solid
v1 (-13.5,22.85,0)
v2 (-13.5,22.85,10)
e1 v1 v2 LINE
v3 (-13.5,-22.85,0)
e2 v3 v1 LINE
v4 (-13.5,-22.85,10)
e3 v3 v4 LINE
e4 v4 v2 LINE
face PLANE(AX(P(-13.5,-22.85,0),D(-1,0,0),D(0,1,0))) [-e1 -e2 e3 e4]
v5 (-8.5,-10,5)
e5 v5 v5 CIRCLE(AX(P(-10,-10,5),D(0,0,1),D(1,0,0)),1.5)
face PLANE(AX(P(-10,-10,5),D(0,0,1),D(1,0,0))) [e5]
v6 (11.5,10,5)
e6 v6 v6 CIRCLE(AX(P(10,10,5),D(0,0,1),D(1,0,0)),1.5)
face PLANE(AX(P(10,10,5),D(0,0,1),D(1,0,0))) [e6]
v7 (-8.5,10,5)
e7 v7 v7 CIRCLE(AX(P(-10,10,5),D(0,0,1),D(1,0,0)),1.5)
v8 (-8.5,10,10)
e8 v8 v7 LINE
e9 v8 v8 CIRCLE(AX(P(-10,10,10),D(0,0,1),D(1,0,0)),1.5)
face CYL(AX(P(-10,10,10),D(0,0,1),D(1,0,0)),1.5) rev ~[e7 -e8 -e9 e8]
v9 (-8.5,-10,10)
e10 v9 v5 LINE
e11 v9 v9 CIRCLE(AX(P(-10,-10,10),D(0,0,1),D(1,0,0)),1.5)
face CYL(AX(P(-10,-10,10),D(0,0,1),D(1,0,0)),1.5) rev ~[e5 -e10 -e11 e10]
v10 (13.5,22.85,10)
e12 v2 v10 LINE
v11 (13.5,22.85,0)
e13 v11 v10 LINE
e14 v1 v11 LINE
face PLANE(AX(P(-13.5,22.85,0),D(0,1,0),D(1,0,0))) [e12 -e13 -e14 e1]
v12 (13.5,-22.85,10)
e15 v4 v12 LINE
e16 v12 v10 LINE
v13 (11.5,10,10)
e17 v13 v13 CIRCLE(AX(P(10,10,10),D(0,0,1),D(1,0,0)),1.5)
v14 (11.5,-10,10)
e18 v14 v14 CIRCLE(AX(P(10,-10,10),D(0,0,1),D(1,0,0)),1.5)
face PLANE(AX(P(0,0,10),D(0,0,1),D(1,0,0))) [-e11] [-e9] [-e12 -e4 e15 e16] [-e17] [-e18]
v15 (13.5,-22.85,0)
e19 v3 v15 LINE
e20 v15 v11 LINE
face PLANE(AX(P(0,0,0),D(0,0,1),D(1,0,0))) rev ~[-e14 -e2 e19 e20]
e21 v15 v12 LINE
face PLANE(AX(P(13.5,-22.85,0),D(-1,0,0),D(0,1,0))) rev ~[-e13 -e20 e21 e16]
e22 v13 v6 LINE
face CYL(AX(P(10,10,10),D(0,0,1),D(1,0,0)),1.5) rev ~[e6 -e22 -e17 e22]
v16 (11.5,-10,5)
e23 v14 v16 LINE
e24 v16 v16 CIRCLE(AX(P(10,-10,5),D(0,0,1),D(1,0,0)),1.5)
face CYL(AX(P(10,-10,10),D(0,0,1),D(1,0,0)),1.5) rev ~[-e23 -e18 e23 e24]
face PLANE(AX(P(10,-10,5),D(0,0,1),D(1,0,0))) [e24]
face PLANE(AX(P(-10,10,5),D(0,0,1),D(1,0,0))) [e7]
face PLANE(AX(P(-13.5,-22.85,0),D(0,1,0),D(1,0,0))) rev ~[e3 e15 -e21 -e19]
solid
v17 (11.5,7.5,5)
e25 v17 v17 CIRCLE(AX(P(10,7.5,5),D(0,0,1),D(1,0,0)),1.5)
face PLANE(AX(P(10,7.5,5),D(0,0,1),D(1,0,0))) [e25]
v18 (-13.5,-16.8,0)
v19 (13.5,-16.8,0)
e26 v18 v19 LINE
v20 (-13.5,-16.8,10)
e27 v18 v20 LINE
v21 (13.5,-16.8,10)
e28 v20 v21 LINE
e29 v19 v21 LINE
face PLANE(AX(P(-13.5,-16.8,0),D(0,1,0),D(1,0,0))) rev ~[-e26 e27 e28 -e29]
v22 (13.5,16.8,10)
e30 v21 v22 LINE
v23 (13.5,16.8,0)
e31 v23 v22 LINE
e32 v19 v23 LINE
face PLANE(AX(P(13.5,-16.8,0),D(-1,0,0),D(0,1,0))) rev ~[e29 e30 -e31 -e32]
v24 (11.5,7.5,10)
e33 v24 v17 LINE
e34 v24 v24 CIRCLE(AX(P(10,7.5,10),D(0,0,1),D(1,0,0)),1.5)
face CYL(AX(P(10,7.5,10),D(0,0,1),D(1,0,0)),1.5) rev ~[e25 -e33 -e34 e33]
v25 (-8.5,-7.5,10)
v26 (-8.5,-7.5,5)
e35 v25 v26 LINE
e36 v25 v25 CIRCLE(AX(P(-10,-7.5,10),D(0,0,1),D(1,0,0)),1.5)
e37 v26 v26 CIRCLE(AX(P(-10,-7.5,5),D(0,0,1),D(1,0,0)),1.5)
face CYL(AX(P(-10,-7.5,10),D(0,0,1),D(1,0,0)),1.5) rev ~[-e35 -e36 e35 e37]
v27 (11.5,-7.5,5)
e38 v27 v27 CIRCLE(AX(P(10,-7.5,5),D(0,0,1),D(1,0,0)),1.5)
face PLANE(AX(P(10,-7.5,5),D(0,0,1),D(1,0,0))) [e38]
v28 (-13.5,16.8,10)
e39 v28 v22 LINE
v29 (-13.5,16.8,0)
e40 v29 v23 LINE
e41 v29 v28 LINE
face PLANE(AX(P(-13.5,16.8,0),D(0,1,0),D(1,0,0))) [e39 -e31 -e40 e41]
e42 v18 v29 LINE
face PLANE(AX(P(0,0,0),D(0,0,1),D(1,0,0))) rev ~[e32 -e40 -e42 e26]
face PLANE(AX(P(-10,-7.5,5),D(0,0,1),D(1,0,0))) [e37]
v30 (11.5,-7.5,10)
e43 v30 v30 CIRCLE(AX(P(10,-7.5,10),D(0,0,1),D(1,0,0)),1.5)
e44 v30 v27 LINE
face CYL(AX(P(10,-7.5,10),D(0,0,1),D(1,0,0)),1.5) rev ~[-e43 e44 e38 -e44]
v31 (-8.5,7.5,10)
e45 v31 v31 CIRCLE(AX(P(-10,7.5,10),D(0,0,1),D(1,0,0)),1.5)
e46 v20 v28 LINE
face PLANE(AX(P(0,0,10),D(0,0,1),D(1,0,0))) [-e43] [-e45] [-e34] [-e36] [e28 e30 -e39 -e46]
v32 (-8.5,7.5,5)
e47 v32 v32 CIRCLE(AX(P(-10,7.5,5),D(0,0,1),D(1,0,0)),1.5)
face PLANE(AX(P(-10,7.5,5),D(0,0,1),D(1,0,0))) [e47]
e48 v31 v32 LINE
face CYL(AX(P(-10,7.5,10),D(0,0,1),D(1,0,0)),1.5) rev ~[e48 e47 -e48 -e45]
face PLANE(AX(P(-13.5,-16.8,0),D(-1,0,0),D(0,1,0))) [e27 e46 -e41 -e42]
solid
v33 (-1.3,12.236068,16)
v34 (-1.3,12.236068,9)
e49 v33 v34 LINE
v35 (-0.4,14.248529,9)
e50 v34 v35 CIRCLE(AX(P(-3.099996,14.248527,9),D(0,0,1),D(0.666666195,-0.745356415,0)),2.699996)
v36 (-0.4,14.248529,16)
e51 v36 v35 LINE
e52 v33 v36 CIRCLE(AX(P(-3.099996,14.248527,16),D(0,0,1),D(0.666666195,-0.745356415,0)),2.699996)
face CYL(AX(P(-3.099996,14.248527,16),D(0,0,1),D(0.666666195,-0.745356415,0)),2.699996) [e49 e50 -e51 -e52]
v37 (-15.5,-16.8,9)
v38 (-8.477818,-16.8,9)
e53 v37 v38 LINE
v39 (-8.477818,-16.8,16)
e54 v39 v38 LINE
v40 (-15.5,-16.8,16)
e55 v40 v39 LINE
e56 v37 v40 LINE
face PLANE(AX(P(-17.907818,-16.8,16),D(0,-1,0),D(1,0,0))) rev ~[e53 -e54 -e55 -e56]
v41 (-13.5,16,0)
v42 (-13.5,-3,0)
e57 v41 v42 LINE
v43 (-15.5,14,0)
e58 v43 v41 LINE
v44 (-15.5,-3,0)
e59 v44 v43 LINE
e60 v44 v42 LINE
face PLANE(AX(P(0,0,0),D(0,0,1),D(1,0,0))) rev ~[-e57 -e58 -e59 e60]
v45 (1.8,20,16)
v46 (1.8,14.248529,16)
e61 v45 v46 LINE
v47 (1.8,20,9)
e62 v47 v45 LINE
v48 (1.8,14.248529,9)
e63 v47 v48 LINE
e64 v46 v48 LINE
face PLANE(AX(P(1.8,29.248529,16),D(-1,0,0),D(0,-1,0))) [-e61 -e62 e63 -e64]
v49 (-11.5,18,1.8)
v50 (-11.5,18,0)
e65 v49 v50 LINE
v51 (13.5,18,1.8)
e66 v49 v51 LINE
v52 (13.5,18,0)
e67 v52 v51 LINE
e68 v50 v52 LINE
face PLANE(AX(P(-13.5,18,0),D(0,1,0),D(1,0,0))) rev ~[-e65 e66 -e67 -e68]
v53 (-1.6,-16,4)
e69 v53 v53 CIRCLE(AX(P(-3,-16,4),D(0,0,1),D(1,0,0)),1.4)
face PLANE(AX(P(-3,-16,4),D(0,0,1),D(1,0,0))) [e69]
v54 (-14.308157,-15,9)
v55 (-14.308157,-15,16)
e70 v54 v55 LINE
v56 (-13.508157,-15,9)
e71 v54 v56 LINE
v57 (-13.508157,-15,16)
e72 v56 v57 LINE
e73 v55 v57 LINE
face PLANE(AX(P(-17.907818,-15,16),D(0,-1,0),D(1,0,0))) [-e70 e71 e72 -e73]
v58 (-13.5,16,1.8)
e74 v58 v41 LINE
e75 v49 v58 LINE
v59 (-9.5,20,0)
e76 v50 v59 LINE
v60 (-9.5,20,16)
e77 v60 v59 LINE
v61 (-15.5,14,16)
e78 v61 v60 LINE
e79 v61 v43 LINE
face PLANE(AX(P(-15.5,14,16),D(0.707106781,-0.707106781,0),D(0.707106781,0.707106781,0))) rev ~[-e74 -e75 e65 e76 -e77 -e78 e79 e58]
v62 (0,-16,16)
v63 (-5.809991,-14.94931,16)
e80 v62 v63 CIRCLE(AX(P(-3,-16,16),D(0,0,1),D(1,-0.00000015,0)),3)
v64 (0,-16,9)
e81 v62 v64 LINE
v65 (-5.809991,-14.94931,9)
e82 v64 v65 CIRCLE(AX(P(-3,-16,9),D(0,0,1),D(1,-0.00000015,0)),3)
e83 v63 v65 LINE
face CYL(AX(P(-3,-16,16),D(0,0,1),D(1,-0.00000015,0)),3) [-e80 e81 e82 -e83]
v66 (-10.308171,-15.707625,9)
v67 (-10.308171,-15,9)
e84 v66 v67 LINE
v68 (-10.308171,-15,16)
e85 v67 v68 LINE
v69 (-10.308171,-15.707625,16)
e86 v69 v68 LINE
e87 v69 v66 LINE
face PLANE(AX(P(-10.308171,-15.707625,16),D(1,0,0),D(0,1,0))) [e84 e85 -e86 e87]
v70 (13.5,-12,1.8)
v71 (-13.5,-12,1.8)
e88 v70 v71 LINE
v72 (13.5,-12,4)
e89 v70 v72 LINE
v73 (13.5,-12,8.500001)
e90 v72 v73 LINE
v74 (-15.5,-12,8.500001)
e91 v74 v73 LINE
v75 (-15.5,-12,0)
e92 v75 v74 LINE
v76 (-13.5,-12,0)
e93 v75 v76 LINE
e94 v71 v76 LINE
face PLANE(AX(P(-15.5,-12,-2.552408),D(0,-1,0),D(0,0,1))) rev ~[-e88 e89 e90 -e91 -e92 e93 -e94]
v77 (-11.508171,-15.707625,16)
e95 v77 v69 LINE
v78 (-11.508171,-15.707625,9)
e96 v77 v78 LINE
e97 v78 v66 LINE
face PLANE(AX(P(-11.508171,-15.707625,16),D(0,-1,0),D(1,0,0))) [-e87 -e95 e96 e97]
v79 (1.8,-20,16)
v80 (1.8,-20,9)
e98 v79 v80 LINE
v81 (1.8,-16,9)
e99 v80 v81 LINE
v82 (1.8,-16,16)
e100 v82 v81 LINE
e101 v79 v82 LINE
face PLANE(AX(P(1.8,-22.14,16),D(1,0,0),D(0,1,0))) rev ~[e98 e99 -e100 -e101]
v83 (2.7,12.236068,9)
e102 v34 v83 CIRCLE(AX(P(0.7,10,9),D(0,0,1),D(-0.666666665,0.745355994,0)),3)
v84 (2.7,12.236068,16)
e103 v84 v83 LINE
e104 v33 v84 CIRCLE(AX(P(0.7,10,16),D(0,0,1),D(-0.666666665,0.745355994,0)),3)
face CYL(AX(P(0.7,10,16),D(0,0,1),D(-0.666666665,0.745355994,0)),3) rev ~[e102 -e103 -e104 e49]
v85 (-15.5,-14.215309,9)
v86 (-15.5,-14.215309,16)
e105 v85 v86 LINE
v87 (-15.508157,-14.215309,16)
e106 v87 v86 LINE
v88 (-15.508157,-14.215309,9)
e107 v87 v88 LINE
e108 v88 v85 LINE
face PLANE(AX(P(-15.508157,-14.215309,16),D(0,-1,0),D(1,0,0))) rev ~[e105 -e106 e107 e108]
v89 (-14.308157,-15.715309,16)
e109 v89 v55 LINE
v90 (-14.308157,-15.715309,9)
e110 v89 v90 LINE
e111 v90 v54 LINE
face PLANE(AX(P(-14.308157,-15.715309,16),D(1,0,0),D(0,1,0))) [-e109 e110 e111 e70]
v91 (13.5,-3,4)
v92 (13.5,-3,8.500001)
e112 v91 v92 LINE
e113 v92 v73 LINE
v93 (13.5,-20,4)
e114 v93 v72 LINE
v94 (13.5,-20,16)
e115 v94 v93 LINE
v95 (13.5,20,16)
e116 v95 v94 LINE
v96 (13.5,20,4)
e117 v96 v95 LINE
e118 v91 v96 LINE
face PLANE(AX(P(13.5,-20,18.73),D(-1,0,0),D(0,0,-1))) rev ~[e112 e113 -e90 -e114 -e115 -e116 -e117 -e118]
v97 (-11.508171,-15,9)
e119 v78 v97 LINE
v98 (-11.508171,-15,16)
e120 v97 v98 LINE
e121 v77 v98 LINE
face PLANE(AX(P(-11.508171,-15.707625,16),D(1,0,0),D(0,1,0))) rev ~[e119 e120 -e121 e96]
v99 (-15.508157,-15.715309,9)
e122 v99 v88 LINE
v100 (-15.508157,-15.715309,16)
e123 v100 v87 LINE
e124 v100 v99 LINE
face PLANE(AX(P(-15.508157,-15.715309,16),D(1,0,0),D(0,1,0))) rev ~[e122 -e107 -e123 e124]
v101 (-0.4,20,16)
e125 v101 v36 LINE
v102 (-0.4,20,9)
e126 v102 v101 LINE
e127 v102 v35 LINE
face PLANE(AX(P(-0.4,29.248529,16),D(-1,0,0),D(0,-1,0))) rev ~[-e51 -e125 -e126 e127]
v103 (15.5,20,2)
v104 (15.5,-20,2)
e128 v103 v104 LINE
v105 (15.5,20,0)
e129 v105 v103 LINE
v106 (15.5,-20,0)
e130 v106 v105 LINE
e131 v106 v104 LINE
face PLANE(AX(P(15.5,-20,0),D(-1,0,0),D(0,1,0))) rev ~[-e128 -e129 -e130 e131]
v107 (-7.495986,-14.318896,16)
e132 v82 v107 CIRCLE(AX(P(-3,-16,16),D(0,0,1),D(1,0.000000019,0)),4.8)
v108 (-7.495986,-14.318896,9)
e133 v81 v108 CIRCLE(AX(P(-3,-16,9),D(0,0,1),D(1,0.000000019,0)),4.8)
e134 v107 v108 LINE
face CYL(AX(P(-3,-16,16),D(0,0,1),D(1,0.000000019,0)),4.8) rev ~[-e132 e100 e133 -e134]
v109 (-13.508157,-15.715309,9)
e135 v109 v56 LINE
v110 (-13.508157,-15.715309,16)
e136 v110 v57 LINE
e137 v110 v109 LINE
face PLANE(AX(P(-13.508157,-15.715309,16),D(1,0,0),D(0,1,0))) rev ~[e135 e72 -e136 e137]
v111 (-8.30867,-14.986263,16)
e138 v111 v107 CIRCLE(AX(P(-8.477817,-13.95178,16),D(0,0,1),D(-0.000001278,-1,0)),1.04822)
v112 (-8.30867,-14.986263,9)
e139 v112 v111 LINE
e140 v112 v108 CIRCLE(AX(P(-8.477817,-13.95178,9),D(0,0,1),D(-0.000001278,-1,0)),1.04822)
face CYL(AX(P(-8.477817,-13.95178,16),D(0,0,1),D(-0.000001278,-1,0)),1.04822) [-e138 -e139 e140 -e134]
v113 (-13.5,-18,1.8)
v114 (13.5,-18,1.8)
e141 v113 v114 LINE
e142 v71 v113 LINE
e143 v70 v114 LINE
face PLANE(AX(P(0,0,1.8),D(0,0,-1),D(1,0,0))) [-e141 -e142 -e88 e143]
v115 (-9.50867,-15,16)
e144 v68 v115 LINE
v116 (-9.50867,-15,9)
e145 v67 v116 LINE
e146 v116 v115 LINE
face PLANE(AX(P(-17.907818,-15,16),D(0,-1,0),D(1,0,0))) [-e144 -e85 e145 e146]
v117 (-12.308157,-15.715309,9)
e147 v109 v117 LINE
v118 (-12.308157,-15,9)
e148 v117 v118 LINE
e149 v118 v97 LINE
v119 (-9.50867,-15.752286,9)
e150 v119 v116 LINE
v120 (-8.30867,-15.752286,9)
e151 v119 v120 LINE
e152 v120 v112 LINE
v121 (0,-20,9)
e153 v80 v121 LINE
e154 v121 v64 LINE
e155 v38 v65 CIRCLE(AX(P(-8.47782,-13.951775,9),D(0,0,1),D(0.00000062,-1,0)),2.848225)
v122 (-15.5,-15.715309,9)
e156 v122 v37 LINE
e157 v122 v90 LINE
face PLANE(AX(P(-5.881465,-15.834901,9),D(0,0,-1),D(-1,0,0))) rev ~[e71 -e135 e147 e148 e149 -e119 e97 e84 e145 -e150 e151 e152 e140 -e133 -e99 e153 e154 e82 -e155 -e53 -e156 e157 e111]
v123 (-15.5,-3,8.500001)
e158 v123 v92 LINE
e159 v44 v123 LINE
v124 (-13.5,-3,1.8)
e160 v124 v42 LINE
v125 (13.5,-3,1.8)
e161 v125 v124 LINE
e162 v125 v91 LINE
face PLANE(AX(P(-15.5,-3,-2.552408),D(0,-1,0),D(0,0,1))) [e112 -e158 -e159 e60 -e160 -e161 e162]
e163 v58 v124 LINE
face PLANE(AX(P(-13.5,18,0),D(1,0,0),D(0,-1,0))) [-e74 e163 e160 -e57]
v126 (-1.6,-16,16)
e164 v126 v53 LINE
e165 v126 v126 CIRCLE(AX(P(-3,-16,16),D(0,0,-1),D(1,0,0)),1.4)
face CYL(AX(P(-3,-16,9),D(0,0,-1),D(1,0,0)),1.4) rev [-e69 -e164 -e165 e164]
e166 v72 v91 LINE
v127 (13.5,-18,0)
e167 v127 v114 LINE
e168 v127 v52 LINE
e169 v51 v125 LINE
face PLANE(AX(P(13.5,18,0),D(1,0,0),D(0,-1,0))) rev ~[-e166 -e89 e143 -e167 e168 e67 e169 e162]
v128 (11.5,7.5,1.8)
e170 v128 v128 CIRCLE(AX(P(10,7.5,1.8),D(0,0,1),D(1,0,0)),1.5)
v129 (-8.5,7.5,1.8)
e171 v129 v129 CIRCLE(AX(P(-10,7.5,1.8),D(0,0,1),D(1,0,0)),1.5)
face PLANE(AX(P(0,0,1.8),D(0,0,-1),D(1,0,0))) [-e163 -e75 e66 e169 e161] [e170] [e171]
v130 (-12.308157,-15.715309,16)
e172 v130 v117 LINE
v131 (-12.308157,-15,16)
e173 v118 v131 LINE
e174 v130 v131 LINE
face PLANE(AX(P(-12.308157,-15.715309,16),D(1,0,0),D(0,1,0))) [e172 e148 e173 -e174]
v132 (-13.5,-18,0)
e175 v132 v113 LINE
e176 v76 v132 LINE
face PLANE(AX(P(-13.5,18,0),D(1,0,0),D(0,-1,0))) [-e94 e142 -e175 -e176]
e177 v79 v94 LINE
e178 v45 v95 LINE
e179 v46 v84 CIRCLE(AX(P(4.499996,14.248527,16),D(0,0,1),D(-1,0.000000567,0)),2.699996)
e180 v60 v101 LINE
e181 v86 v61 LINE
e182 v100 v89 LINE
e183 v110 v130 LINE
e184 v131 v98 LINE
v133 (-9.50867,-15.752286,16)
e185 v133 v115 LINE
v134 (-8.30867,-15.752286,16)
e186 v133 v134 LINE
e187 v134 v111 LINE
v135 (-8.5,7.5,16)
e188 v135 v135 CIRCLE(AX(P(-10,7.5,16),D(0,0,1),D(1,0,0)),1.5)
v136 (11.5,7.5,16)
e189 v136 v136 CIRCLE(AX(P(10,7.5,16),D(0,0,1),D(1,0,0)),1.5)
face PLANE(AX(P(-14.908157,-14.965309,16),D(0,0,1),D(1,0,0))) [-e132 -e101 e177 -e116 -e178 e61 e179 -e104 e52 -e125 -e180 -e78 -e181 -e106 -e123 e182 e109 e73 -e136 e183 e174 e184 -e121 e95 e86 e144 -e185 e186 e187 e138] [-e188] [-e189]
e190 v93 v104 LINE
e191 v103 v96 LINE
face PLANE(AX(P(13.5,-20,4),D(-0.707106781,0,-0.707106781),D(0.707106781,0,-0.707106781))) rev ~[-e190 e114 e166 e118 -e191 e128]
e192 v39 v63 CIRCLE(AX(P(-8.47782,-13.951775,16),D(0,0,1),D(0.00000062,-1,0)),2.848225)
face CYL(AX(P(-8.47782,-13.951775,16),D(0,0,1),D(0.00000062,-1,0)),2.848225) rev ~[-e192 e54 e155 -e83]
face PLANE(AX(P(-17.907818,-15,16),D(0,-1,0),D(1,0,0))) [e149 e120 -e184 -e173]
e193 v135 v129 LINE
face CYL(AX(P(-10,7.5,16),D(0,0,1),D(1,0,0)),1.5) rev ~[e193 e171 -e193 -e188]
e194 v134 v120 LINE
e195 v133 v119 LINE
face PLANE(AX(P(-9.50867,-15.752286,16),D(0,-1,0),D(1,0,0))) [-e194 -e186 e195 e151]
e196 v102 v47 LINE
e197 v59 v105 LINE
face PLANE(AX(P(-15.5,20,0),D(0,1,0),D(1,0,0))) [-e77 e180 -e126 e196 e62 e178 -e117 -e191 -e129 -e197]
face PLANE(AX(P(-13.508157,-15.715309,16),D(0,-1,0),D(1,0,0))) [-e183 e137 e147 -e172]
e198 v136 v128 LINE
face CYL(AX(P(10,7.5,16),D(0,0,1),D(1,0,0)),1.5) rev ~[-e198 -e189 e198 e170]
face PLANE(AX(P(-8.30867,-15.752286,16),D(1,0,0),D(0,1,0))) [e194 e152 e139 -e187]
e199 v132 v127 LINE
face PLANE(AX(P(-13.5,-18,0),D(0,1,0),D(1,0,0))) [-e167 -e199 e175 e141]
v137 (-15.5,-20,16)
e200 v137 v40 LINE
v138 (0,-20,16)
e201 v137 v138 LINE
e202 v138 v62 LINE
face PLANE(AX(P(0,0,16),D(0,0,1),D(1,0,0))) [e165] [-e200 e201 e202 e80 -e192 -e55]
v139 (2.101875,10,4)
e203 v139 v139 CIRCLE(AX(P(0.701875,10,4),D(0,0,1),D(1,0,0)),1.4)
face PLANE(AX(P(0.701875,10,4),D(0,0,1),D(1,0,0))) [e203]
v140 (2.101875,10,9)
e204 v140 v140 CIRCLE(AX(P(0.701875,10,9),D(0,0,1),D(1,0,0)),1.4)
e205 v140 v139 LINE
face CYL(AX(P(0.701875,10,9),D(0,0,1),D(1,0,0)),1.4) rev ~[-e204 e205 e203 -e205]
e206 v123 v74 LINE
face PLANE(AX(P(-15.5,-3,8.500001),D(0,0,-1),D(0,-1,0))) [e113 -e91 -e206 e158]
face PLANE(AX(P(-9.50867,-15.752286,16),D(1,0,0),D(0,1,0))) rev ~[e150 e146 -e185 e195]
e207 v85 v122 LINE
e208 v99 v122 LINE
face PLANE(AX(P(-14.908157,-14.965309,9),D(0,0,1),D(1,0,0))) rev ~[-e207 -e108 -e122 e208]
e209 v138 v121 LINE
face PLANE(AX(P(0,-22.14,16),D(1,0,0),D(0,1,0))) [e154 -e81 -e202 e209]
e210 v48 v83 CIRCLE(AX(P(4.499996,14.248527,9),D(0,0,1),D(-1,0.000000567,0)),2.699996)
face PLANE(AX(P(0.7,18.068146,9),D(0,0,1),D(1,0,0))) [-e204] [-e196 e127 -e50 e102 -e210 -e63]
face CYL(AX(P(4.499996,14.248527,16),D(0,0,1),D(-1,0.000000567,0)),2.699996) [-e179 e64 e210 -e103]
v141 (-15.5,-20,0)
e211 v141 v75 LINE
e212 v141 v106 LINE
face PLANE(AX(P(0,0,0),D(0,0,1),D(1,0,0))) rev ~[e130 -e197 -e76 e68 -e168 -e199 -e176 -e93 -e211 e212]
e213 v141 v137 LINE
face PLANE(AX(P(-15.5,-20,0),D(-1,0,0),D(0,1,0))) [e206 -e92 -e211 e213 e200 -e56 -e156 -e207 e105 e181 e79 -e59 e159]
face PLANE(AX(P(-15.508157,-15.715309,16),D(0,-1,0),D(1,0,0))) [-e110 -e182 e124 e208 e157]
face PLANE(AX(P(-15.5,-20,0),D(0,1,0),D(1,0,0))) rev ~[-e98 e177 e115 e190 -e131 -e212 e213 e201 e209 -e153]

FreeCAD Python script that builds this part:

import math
import FreeCAD as App
import Part
import Sketcher
from FreeCAD import Vector
Q = App.Units.Quantity

doc = App.newDocument("Part")
params = doc.addObject("Spreadsheet::Sheet", "Params")
for row, (alias, value) in enumerate([
    ("sketch1_width", "27 mm"),
    ("sketch1_height", "45.7 mm"),
    ("pad1_length", "10 mm"),
    ("sketch2_diameter", "3 mm"),
    ("pocket1_length", "5 mm"),
    ("sketch3_width", "27 mm"),
    ("sketch3_height", "33.6 mm"),
    ("pad2_length", "10 mm"),
    ("sketch4_diameter", "3 mm"),
    ("pocket2_length", "5 mm"),
    ("sketch5_width", "31 mm"),
    ("sketch5_height", "40 mm"),
    ("pad3_length", "16 mm"),
    ("sketch6_width", "27 mm"),
    ("sketch6_height", "36 mm"),
    ("pocket3_length", "1.8 mm"),
    ("sketch7_width", "9 mm"),
    ("pocket4_length", "29 mm"),
    ("sketch8_height", "21.2 mm"),
    ("sketch8_width", "6.47 mm"),
    ("sketch9_diameter", "3 mm"),
    ("sketch10_radius", "3 mm"),
    ("sketch10_radius2", "4.8 mm"),
    ("sketch10_height", "15 mm"),
    ("sketch10_width", "2.2 mm"),
    ("sketch10_width2", "9.43 mm"),
    ("pocket7_length", "7 mm"),
    ("sketch11_diameter", "2.8 mm"),
    ("pocket8_length", "5 mm"),
    ("pocket8_length2", "100 mm"),
    ("sketch13_width", "1.2 mm"),
    ("sketch13_height", "1.5 mm"),
    ("pad4_length", "7 mm"),
], start=1):
    params.set(f"A{row}", alias)
    params.set(f"B{row}", "=" + value)
    params.setAlias(f"B{row}", alias)

body = doc.addObject("PartDesign::Body", "Body")

# Sketch on XY plane
sketch1 = body.newObject("Sketcher::SketchObject", "Sketch")
sketch1.AttachmentSupport = (doc.getObject("XY_Plane"), [""])
sketch1.MapMode = "FlatFace"
sketch1.addGeometry([
    Part.LineSegment(Vector(-14, 23, 0), Vector(-14, -23, 0)),
    Part.LineSegment(Vector(-14, -23, 0), Vector(14, -23, 0)),
    Part.LineSegment(Vector(14, -23, 0), Vector(14, 23, 0)),
    Part.LineSegment(Vector(14, 23, 0), Vector(-14, 23, 0)),
], False)
sketch1.addConstraint([
    Sketcher.Constraint("Coincident", 0, 2, 1, 1),
    Sketcher.Constraint("Coincident", 1, 2, 2, 1),
    Sketcher.Constraint("Coincident", 2, 2, 3, 1),
    Sketcher.Constraint("Coincident", 3, 2, 0, 1),
    Sketcher.Constraint("Vertical", 0),
    Sketcher.Constraint("Horizontal", 1),
    Sketcher.Constraint("Vertical", 2),
    Sketcher.Constraint("Horizontal", 3),
    Sketcher.Constraint("Symmetric", 0, 2, 2, 2, -1, 1),
    Sketcher.Constraint("DistanceX", 1, 1, 1, 2, 27.0),
    Sketcher.Constraint("DistanceY", 0, 2, 0, 1, 45.7),
])
sketch1.setExpression("Constraints[9]", "Params.sketch1_width")
sketch1.setExpression("Constraints[10]", "Params.sketch1_height")
pad1 = body.newObject("PartDesign::Pad", "Pad")
pad1.Profile = sketch1
pad1.setExpression("Length", "Params.pad1_length")

# Sketch on XY plane
sketch2 = body.newObject("Sketcher::SketchObject", "Sketch001")
sketch2.AttachmentSupport = (doc.getObject("XY_Plane"), [""])
sketch2.MapMode = "FlatFace"
sketch2.AttachmentOffset = App.Placement(Vector(0, 0, 10), App.Rotation())
sketch2.addGeometry([
    Part.Circle(Vector(-10, 10, 0), Vector(0, 0, 1), 1.5),
    Part.Circle(Vector(10, 10, 0), Vector(0, 0, 1), 1.5),
    Part.Circle(Vector(-10, -10, 0), Vector(0, 0, 1), 1.5),
    Part.Circle(Vector(10, -10, 0), Vector(0, 0, 1), 1.5),
], False)
sketch2.addConstraint([
    Sketcher.Constraint("Equal", 0, 1),
    Sketcher.Constraint("Equal", 1, 2),
    Sketcher.Constraint("Equal", 2, 3),
    Sketcher.Constraint("Symmetric", 1, 3, 2, 3, -1, 1),
    Sketcher.Constraint("Symmetric", 0, 3, 3, 3, -1, 1),
    Sketcher.Constraint("Symmetric", 0, 3, 1, 3, -2),
    Sketcher.Constraint("Diameter", 0, 3.0),
    Sketcher.Constraint("DistanceX", 0, 3, -1, 1, 10.0),
    Sketcher.Constraint("DistanceY", -1, 1, 0, 3, 10.0),
])
sketch2.setExpression("Constraints[6]", "Params.sketch2_diameter")
pocket1 = body.newObject("PartDesign::Pocket", "Pocket")
pocket1.Profile = sketch2
pocket1.setExpression("Length", "Params.pocket1_length")
body2 = doc.addObject("PartDesign::Body", "Body001")

# Sketch on XY plane
sketch3 = body2.newObject("Sketcher::SketchObject", "Sketch002")
sketch3.AttachmentSupport = (doc.getObject("XY_Plane001"), [""])
sketch3.MapMode = "FlatFace"
sketch3.addGeometry([
    Part.LineSegment(Vector(-14, 17, 0), Vector(-14, -17, 0)),
    Part.LineSegment(Vector(-14, -17, 0), Vector(14, -17, 0)),
    Part.LineSegment(Vector(14, -17, 0), Vector(14, 17, 0)),
    Part.LineSegment(Vector(14, 17, 0), Vector(-14, 17, 0)),
], False)
sketch3.addConstraint([
    Sketcher.Constraint("Coincident", 0, 2, 1, 1),
    Sketcher.Constraint("Coincident", 1, 2, 2, 1),
    Sketcher.Constraint("Coincident", 2, 2, 3, 1),
    Sketcher.Constraint("Coincident", 3, 2, 0, 1),
    Sketcher.Constraint("Vertical", 0),
    Sketcher.Constraint("Horizontal", 1),
    Sketcher.Constraint("Vertical", 2),
    Sketcher.Constraint("Horizontal", 3),
    Sketcher.Constraint("Symmetric", 0, 2, 2, 2, -1, 1),
    Sketcher.Constraint("DistanceX", 1, 1, 1, 2, 27.0),
    Sketcher.Constraint("DistanceY", 0, 2, 0, 1, 33.6),
])
sketch3.setExpression("Constraints[9]", "Params.sketch3_width")
sketch3.setExpression("Constraints[10]", "Params.sketch3_height")
pad2 = body2.newObject("PartDesign::Pad", "Pad001")
pad2.Profile = sketch3
pad2.setExpression("Length", "Params.pad2_length")

# Sketch on XY plane
sketch4 = body2.newObject("Sketcher::SketchObject", "Sketch003")
sketch4.AttachmentSupport = (doc.getObject("XY_Plane001"), [""])
sketch4.MapMode = "FlatFace"
sketch4.AttachmentOffset = App.Placement(Vector(0, 0, 10), App.Rotation())
sketch4.addGeometry([
    Part.Circle(Vector(-10, 7.5, 0), Vector(0, 0, 1), 1.5),
    Part.Circle(Vector(10, 7.5, 0), Vector(0, 0, 1), 1.5),
    Part.Circle(Vector(-10, -7.5, 0), Vector(0, 0, 1), 1.5),
    Part.Circle(Vector(10, -7.5, 0), Vector(0, 0, 1), 1.5),
], False)
sketch4.addConstraint([
    Sketcher.Constraint("Equal", 0, 1),
    Sketcher.Constraint("Equal", 1, 2),
    Sketcher.Constraint("Equal", 2, 3),
    Sketcher.Constraint("Symmetric", 1, 3, 2, 3, -1, 1),
    Sketcher.Constraint("Symmetric", 0, 3, 3, 3, -1, 1),
    Sketcher.Constraint("Symmetric", 0, 3, 1, 3, -2),
    Sketcher.Constraint("Diameter", 0, 3.0),
    Sketcher.Constraint("DistanceX", 0, 3, -1, 1, 10.0),
    Sketcher.Constraint("DistanceY", 2, 3, 0, 3, 15.0),
])
sketch4.setExpression("Constraints[6]", "Params.sketch4_diameter")
pocket2 = body2.newObject("PartDesign::Pocket", "Pocket001")
pocket2.Profile = sketch4
pocket2.setExpression("Length", "Params.pocket2_length")
body3 = doc.addObject("PartDesign::Body", "Body002")

# Sketch on XY plane
sketch5 = body3.newObject("Sketcher::SketchObject", "Sketch004")
sketch5.AttachmentSupport = (doc.getObject("XY_Plane002"), [""])
sketch5.MapMode = "FlatFace"
sketch5.addGeometry([
    Part.LineSegment(Vector(-16, 20, 0), Vector(-16, -20, 0)),
    Part.LineSegment(Vector(-16, -20, 0), Vector(16, -20, 0)),
    Part.LineSegment(Vector(16, -20, 0), Vector(16, 20, 0)),
    Part.LineSegment(Vector(16, 20, 0), Vector(-16, 20, 0)),
], False)
sketch5.addConstraint([
    Sketcher.Constraint("Coincident", 0, 2, 1, 1),
    Sketcher.Constraint("Coincident", 1, 2, 2, 1),
    Sketcher.Constraint("Coincident", 2, 2, 3, 1),
    Sketcher.Constraint("Coincident", 3, 2, 0, 1),
    Sketcher.Constraint("Vertical", 0),
    Sketcher.Constraint("Horizontal", 1),
    Sketcher.Constraint("Vertical", 2),
    Sketcher.Constraint("Horizontal", 3),
    Sketcher.Constraint("Symmetric", 0, 2, 2, 2, -1, 1),
    Sketcher.Constraint("DistanceX", 1, 1, 1, 2, 31.0),
    Sketcher.Constraint("DistanceY", 0, 2, 0, 1, 40.0),
])
sketch5.setExpression("Constraints[9]", "Params.sketch5_width")
sketch5.setExpression("Constraints[10]", "Params.sketch5_height")
pad3 = body3.newObject("PartDesign::Pad", "Pad002")
pad3.Profile = sketch5
pad3.setExpression("Length", "Params.pad3_length")

# Sketch on XY plane
sketch6 = body3.newObject("Sketcher::SketchObject", "Sketch005")
sketch6.AttachmentSupport = (doc.getObject("XY_Plane002"), [""])
sketch6.MapMode = "FlatFace"
sketch6.addGeometry([
    Part.LineSegment(Vector(-14, -18, 0), Vector(-14, 18, 0)),
    Part.LineSegment(Vector(-14, 18, 0), Vector(14, 18, 0)),
    Part.LineSegment(Vector(14, 18, 0), Vector(14, -18, 0)),
    Part.LineSegment(Vector(14, -18, 0), Vector(-14, -18, 0)),
], False)
sketch6.addConstraint([
    Sketcher.Constraint("Coincident", 0, 2, 1, 1),
    Sketcher.Constraint("Coincident", 1, 2, 2, 1),
    Sketcher.Constraint("Coincident", 2, 2, 3, 1),
    Sketcher.Constraint("Coincident", 3, 2, 0, 1),
    Sketcher.Constraint("Vertical", 0),
    Sketcher.Constraint("Horizontal", 1),
    Sketcher.Constraint("Vertical", 2),
    Sketcher.Constraint("Horizontal", 3),
    Sketcher.Constraint("Symmetric", 0, 2, 2, 2, -1, 1),
    Sketcher.Constraint("DistanceX", 1, 1, 1, 2, 27.0),
    Sketcher.Constraint("DistanceY", 0, 1, 0, 2, 36.0),
])
sketch6.setExpression("Constraints[9]", "Params.sketch6_width")
sketch6.setExpression("Constraints[10]", "Params.sketch6_height")
pocket3 = body3.newObject("PartDesign::Pocket", "Pocket002")
pocket3.Profile = sketch6
pocket3.setExpression("Length", "Params.pocket3_length")
pocket3.Reversed = True

# Sketch on YZ plane
sketch7 = body3.newObject("Sketcher::SketchObject", "Sketch006")
sketch7.AttachmentSupport = (doc.getObject("YZ_Plane002"), [""])
sketch7.MapMode = "FlatFace"
sketch7.AttachmentOffset = App.Placement(Vector(0, 0, -15.5), App.Rotation())
sketch7.addGeometry([
    Part.LineSegment(Vector(-3, 9, 0), Vector(-3, -3, 0)),
    Part.LineSegment(Vector(-3, -3, 0), Vector(-12, -3, 0)),
    Part.LineSegment(Vector(-12, -3, 0), Vector(-12, 9, 0)),
    Part.LineSegment(Vector(-12, 9, 0), Vector(-3, 9, 0)),
], False)
sketch7.addConstraint([
    Sketcher.Constraint("Coincident", 0, 2, 1, 1),
    Sketcher.Constraint("Coincident", 1, 2, 2, 1),
    Sketcher.Constraint("Coincident", 2, 2, 3, 1),
    Sketcher.Constraint("Coincident", 3, 2, 0, 1),
    Sketcher.Constraint("Vertical", 0),
    Sketcher.Constraint("Horizontal", 1),
    Sketcher.Constraint("Vertical", 2),
    Sketcher.Constraint("Horizontal", 3),
    Sketcher.Constraint("DistanceX", 1, 2, 1, 1, 9.0),
    Sketcher.Constraint("DistanceX", 0, 2, -1, 1, 3.0),
    Sketcher.Constraint("DistanceY", -1, 1, 2, 2, 8.500001),
    Sketcher.Constraint("DistanceY", 0, 2, 0, 1, 11.052409),
])
sketch7.setExpression("Constraints[8]", "Params.sketch7_width")
pocket4 = body3.newObject("PartDesign::Pocket", "Pocket003")
pocket4.Profile = sketch7
pocket4.setExpression("Length", "Params.pocket4_length")
pocket4.Reversed = True

# Sketch on XZ plane
sketch8 = body3.newObject("Sketcher::SketchObject", "Sketch007")
sketch8.AttachmentSupport = (doc.getObject("XZ_Plane002"), [""])
sketch8.MapMode = "FlatFace"
sketch8.AttachmentOffset = App.Placement(Vector(0, 0, 20), App.Rotation())
sketch8.addGeometry([
    Part.LineSegment(Vector(14, 19, 0), Vector(14, 4, 0)),
    Part.LineSegment(Vector(14, 4, 0), Vector(20, -2, 0)),
    Part.LineSegment(Vector(20, -2, 0), Vector(20, 19, 0)),
    Part.LineSegment(Vector(20, 19, 0), Vector(14, 19, 0)),
], False)
sketch8.addConstraint([
    Sketcher.Constraint("Coincident", 0, 2, 1, 1),
    Sketcher.Constraint("Coincident", 1, 2, 2, 1),
    Sketcher.Constraint("Coincident", 2, 2, 3, 1),
    Sketcher.Constraint("Coincident", 3, 2, 0, 1),
    Sketcher.Constraint("Vertical", 0),
    Sketcher.Constraint("Vertical", 2),
    Sketcher.Constraint("Horizontal", 3),
    Sketcher.Constraint("Angle", 1, Q("-45 deg")),
    Sketcher.Constraint("DistanceY", 2, 1, 2, 2, 21.2),
    Sketcher.Constraint("DistanceY", -1, 1, 0, 2, 4.0),
    Sketcher.Constraint("DistanceX", 3, 2, 3, 1, 6.47),
    Sketcher.Constraint("DistanceX", -1, 1, 0, 2, 13.5),
])
sketch8.setExpression("Constraints[8]", "Params.sketch8_height")
sketch8.setExpression("Constraints[10]", "Params.sketch8_width")
pocket5 = body3.newObject("PartDesign::Pocket", "Pocket004")
pocket5.Profile = sketch8
pocket5.Type = "ThroughAll"

# Sketch on XY plane
sketch9 = body3.newObject("Sketcher::SketchObject", "Sketch008")
sketch9.AttachmentSupport = (doc.getObject("XY_Plane002"), [""])
sketch9.MapMode = "FlatFace"
sketch9.AttachmentOffset = App.Placement(Vector(0, 0, 16), App.Rotation())
sketch9.addGeometry([
    Part.Circle(Vector(-10, 7.5, 0), Vector(0, 0, 1), 1.5),
    Part.Circle(Vector(10, 7.5, 0), Vector(0, 0, 1), 1.5),
], False)
sketch9.addConstraint([
    Sketcher.Constraint("Equal", 0, 1),
    Sketcher.Constraint("Symmetric", 0, 3, 1, 3, -2),
    Sketcher.Constraint("Diameter", 0, 3.0),
    Sketcher.Constraint("DistanceX", 0, 3, -1, 1, 10.0),
    Sketcher.Constraint("DistanceY", -1, 1, 0, 3, 7.5),
])
sketch9.setExpression("Constraints[2]", "Params.sketch9_diameter")
pocket6 = body3.newObject("PartDesign::Pocket", "Pocket005")
pocket6.Profile = sketch9
pocket6.Type = "ThroughAll"

# Sketch on XY plane
sketch10 = body3.newObject("Sketcher::SketchObject", "Sketch009")
sketch10.AttachmentSupport = (doc.getObject("XY_Plane002"), [""])
sketch10.MapMode = "FlatFace"
sketch10.AttachmentOffset = App.Placement(Vector(0, 0, 16), App.Rotation())
sketch10.addGeometry([
    Part.LineSegment(Vector(1.8, 29.2, 0), Vector(-0.4, 29.2, 0)),  # 0
    Part.LineSegment(Vector(-0.4, 29.2, 0), Vector(-0.4, 14.2, 0)),  # 1
    Part.ArcOfCircle(Part.Circle(Vector(-3.1, 14.2, 0), Vector(0, 0, 1), 2.7), math.radians(-48), math.radians(0)),  # 2
    Part.ArcOfCircle(Part.Circle(Vector(0.7, 10, 0), Vector(0, 0, 1), 3), math.radians(132), math.radians(408)),  # 3
    Part.ArcOfCircle(Part.Circle(Vector(4.5, 14.2, 0), Vector(0, 0, 1), 2.7), math.radians(180), math.radians(228)),  # 4
    Part.LineSegment(Vector(1.8, 14.2, 0), Vector(1.8, 29.2, 0)),  # 5
    Part.LineSegment(Vector(0, -16, 0), Vector(0, -22.1, 0)),  # 6
    Part.LineSegment(Vector(0, -22.1, 0), Vector(1.8, -22.1, 0)),  # 7
    Part.LineSegment(Vector(1.8, -22.1, 0), Vector(1.8, -16, 0)),  # 8
    Part.ArcOfCircle(Part.Circle(Vector(-3, -16, 0), Vector(0, 0, 1), 4.8), math.radians(0), math.radians(159)),  # 9
    Part.ArcOfCircle(Part.Circle(Vector(-8.5, -14, 0), Vector(0, 0, 1), 1), math.radians(-90), math.radians(-21)),  # 10
    Part.LineSegment(Vector(-8.5, -15, 0), Vector(-17.9, -15, 0)),  # 11
    Part.LineSegment(Vector(-17.9, -15, 0), Vector(-17.9, -16.8, 0)),  # 12
    Part.LineSegment(Vector(-17.9, -16.8, 0), Vector(-8.5, -16.8, 0)),  # 13
    Part.ArcOfCircle(Part.Circle(Vector(-8.5, -14, 0), Vector(0, 0, 1), 2.8), math.radians(-90), math.radians(-21)),  # 14
    Part.ArcOfCircle(Part.Circle(Vector(-3, -16, 0), Vector(0, 0, 1), 3), math.radians(0), math.radians(159)),  # 15
], False)
sketch10.addConstraint([
    Sketcher.Constraint("Coincident", 0, 2, 1, 1),
    Sketcher.Constraint("Tangent", 1, 2, 2, 2),
    Sketcher.Constraint("Tangent", 2, 1, 3, 1),
    Sketcher.Constraint("Tangent", 3, 2, 4, 2),
    Sketcher.Constraint("Tangent", 4, 1, 5, 1),
    Sketcher.Constraint("Coincident", 5, 2, 0, 1),
    Sketcher.Constraint("Coincident", 6, 2, 7, 1),
    Sketcher.Constraint("Coincident", 7, 2, 8, 1),
    Sketcher.Constraint("Tangent", 8, 2, 9, 1),
    Sketcher.Constraint("Tangent", 9, 2, 10, 2),
    Sketcher.Constraint("Tangent", 10, 1, 11, 1),
    Sketcher.Constraint("Coincident", 11, 2, 12, 1),
    Sketcher.Constraint("Coincident", 12, 2, 13, 1),
    Sketcher.Constraint("Tangent", 13, 2, 14, 1),
    Sketcher.Constraint("Tangent", 14, 2, 15, 2),
    Sketcher.Constraint("Tangent", 15, 1, 6, 1),
    Sketcher.Constraint("Horizontal", 0),
    Sketcher.Constraint("Vertical", 1),
    Sketcher.Constraint("Vertical", 5),
    Sketcher.Constraint("Vertical", 6),
    Sketcher.Constraint("Horizontal", 7),
    Sketcher.Constraint("Vertical", 8),
    Sketcher.Constraint("Horizontal", 11),
    Sketcher.Constraint("Vertical", 12),
    Sketcher.Constraint("Horizontal", 13),
    Sketcher.Constraint("Coincident", 14, 3, 10, 3),
    Sketcher.Constraint("Coincident", 15, 3, 9, 3),
    Sketcher.Constraint("Equal", 2, 4),
    Sketcher.Constraint("Equal", 3, 15),
    Sketcher.Constraint("PointOnObject", 6, 2, -2),
    Sketcher.Constraint("Horizontal", 2, 3, 4, 3),
    Sketcher.Constraint("Vertical", 5, 2, 7, 2),
    Sketcher.Constraint("Radius", 3, 3.0),
    Sketcher.Constraint("Radius", 9, 4.8),
    Sketcher.Constraint("DistanceY", 1, 2, 1, 1, 15.0),
    Sketcher.Constraint("DistanceX", 0, 2, 0, 1, 2.2),
    Sketcher.Constraint("DistanceY", -1, 1, 3, 3, 10.0),
    Sketcher.Constraint("DistanceY", 9, 3, -1, 1, 16.0),
    Sketcher.Constraint("DistanceY", 10, 1, -1, 1, 15.0),
    Sketcher.Constraint("DistanceX", 2, 1, 3, 3, 2.0),
    Sketcher.Constraint("DistanceX", 11, 2, 11, 1, 9.43),
    Sketcher.Constraint("DistanceY", 6, 2, 6, 1, 6.14),
    Sketcher.Constraint("Radius", 10, 1.04822),
])
sketch10.setExpression("Constraints[32]", "Params.sketch10_radius")
sketch10.setExpression("Constraints[33]", "Params.sketch10_radius2")
sketch10.setExpression("Constraints[34]", "Params.sketch10_height")
sketch10.setExpression("Constraints[35]", "Params.sketch10_width")
sketch10.setExpression("Constraints[40]", "Params.sketch10_width2")
pocket7 = body3.newObject("PartDesign::Pocket", "Pocket006")
pocket7.Profile = sketch10
pocket7.setExpression("Length", "Params.pocket7_length")

# Sketch on XY plane
sketch11 = body3.newObject("Sketcher::SketchObject", "Sketch010")
sketch11.AttachmentSupport = (doc.getObject("XY_Plane002"), [""])
sketch11.MapMode = "FlatFace"
sketch11.AttachmentOffset = App.Placement(Vector(0, 0, 9), App.Rotation())
sketch11.addGeometry([
    Part.Circle(Vector(-3, -16, 0), Vector(0, 0, 1), 1.4),
    Part.Circle(Vector(0.7, 10, 0), Vector(0, 0, 1), 1.4),
], False)
sketch11.addConstraint([
    Sketcher.Constraint("Equal", 0, 1),
    Sketcher.Constraint("Diameter", 0, 2.8),
    Sketcher.Constraint("DistanceX", 0, 3, -1, 1, 3.0),
    Sketcher.Constraint("DistanceY", 0, 3, -1, 1, 16.0),
    Sketcher.Constraint("DistanceY", -1, 1, 1, 3, 10.0),
    Sketcher.Constraint("DistanceX", -1, 1, 1, 3, 0.701875),
])
sketch11.setExpression("Constraints[1]", "Params.sketch11_diameter")
pocket8 = body3.newObject("PartDesign::Pocket", "Pocket007")
pocket8.Profile = sketch11
pocket8.Type = "TwoLengths"
pocket8.setExpression("Length", "Params.pocket8_length")
pocket8.setExpression("Length2", "Params.pocket8_length2")

# Sketch on XY plane
sketch12 = body3.newObject("Sketcher::SketchObject", "Sketch011")
sketch12.AttachmentSupport = (doc.getObject("XY_Plane002"), [""])
sketch12.MapMode = "FlatFace"
sketch12.AttachmentOffset = App.Placement(Vector(0, 0, 16), App.Rotation())
sketch12.addGeometry([
    Part.LineSegment(Vector(-16, 14, 0), Vector(-8, 22, 0)),
    Part.LineSegment(Vector(-8, 22, 0), Vector(-21, 27, 0)),
    Part.LineSegment(Vector(-21, 27, 0), Vector(-16, 14, 0)),
], False)
sketch12.addConstraint([
    Sketcher.Constraint("Coincident", 0, 2, 1, 1),
    Sketcher.Constraint("Coincident", 1, 2, 2, 1),
    Sketcher.Constraint("Coincident", 2, 2, 0, 1),
    Sketcher.Constraint("Angle", 0, Q("45 deg")),
    Sketcher.Constraint("DistanceY", -1, 1, 2, 2, 14.0),
    Sketcher.Constraint("DistanceX", 2, 2, -1, 1, 15.5),
    Sketcher.Constraint("Distance", 0, 11.311439),
    Sketcher.Constraint("DistanceX", 1, 2, -1, 1, 21.34561),
    Sketcher.Constraint("DistanceY", -1, 1, 1, 2, 27.350628),
])
pocket9 = body3.newObject("PartDesign::Pocket", "Pocket008")
pocket9.Profile = sketch12
pocket9.Type = "ThroughAll"

# Sketch on XY plane
sketch13 = body3.newObject("Sketcher::SketchObject", "Sketch012")
sketch13.AttachmentSupport = (doc.getObject("XY_Plane002"), [""])
sketch13.MapMode = "FlatFace"
sketch13.AttachmentOffset = App.Placement(Vector(0, 0, 16), App.Rotation())
sketch13.addGeometry([
    Part.LineSegment(Vector(-15.5, -14.2, 0), Vector(-15.5, -15.7, 0)),  # 0
    Part.LineSegment(Vector(-15.5, -15.7, 0), Vector(-14.3, -15.7, 0)),  # 1
    Part.LineSegment(Vector(-14.3, -15.7, 0), Vector(-14.3, -14.2, 0)),  # 2
    Part.LineSegment(Vector(-14.3, -14.2, 0), Vector(-15.5, -14.2, 0)),  # 3
    Part.LineSegment(Vector(-13.5, -14.2, 0), Vector(-13.5, -15.7, 0)),  # 4
    Part.LineSegment(Vector(-13.5, -15.7, 0), Vector(-12.3, -15.7, 0)),  # 5
    Part.LineSegment(Vector(-12.3, -15.7, 0), Vector(-12.3, -14.2, 0)),  # 6
    Part.LineSegment(Vector(-12.3, -14.2, 0), Vector(-13.5, -14.2, 0)),  # 7
    Part.LineSegment(Vector(-11.5, -14.2, 0), Vector(-11.5, -15.7, 0)),  # 8
    Part.LineSegment(Vector(-11.5, -15.7, 0), Vector(-10.3, -15.7, 0)),  # 9
    Part.LineSegment(Vector(-10.3, -15.7, 0), Vector(-10.3, -14.2, 0)),  # 10
    Part.LineSegment(Vector(-10.3, -14.2, 0), Vector(-11.5, -14.2, 0)),  # 11
    Part.LineSegment(Vector(-9.5, -14.3, 0), Vector(-9.5, -15.8, 0)),  # 12
    Part.LineSegment(Vector(-9.5, -15.8, 0), Vector(-8.3, -15.8, 0)),  # 13
    Part.LineSegment(Vector(-8.3, -15.8, 0), Vector(-8.3, -14.3, 0)),  # 14
    Part.LineSegment(Vector(-8.3, -14.3, 0), Vector(-9.5, -14.3, 0)),  # 15
], False)
sketch13.addConstraint([
    Sketcher.Constraint("Coincident", 0, 2, 1, 1),
    Sketcher.Constraint("Coincident", 1, 2, 2, 1),
    Sketcher.Constraint("Coincident", 2, 2, 3, 1),
    Sketcher.Constraint("Coincident", 3, 2, 0, 1),
    Sketcher.Constraint("Coincident", 4, 2, 5, 1),
    Sketcher.Constraint("Coincident", 5, 2, 6, 1),
    Sketcher.Constraint("Coincident", 6, 2, 7, 1),
    Sketcher.Constraint("Coincident", 7, 2, 4, 1),
    Sketcher.Constraint("Coincident", 8, 2, 9, 1),
    Sketcher.Constraint("Coincident", 9, 2, 10, 1),
    Sketcher.Constraint("Coincident", 10, 2, 11, 1),
    Sketcher.Constraint("Coincident", 11, 2, 8, 1),
    Sketcher.Constraint("Coincident", 12, 2, 13, 1),
    Sketcher.Constraint("Coincident", 13, 2, 14, 1),
    Sketcher.Constraint("Coincident", 14, 2, 15, 1),
    Sketcher.Constraint("Coincident", 15, 2, 12, 1),
    Sketcher.Constraint("Vertical", 0),
    Sketcher.Constraint("Horizontal", 1),
    Sketcher.Constraint("Vertical", 2),
    Sketcher.Constraint("Horizontal", 3),
    Sketcher.Constraint("Vertical", 4),
    Sketcher.Constraint("Horizontal", 5),
    Sketcher.Constraint("Vertical", 6),
    Sketcher.Constraint("Horizontal", 7),
    Sketcher.Constraint("Vertical", 8),
    Sketcher.Constraint("Horizontal", 9),
    Sketcher.Constraint("Vertical", 10),
    Sketcher.Constraint("Horizontal", 11),
    Sketcher.Constraint("Vertical", 12),
    Sketcher.Constraint("Horizontal", 13),
    Sketcher.Constraint("Vertical", 14),
    Sketcher.Constraint("Horizontal", 15),
    Sketcher.Constraint("Horizontal", 1, 2, 4, 2),
    Sketcher.Constraint("Horizontal", 3, 2, 6, 2),
    Sketcher.Constraint("Equal", 3, 5),
    Sketcher.Constraint("Equal", 7, 9),
    Sketcher.Constraint("Equal", 11, 13),
    Sketcher.Constraint("Equal", 6, 8),
    Sketcher.Constraint("Equal", 10, 12),
    Sketcher.Constraint("DistanceX", 1, 1, 1, 2, 1.2),
    Sketcher.Constraint("DistanceY", 0, 2, 0, 1, 1.5),
    Sketcher.Constraint("DistanceX", 0, 2, 4, 2, 2.0),
    Sketcher.Constraint("DistanceX", 9, 2, 12, 2, 0.799501),
    Sketcher.Constraint("DistanceY", 0, 2, -1, 1, 15.715309),
    Sketcher.Constraint("DistanceX", 8, 2, -1, 1, 11.508171),
    Sketcher.Constraint("DistanceY", 12, 2, 9, 2, 0.044661),
    Sketcher.Constraint("DistanceX", 0, 2, -1, 1, 15.508157),
    Sketcher.Constraint("DistanceY", 8, 2, -1, 1, 15.707625),
])
sketch13.setExpression("Constraints[39]", "Params.sketch13_width")
sketch13.setExpression("Constraints[40]", "Params.sketch13_height")
pad4 = body3.newObject("PartDesign::Pad", "Pad003")
pad4.Profile = sketch13
pad4.setExpression("Length", "Params.pad4_length")
pad4.Reversed = True

doc.recompute()
